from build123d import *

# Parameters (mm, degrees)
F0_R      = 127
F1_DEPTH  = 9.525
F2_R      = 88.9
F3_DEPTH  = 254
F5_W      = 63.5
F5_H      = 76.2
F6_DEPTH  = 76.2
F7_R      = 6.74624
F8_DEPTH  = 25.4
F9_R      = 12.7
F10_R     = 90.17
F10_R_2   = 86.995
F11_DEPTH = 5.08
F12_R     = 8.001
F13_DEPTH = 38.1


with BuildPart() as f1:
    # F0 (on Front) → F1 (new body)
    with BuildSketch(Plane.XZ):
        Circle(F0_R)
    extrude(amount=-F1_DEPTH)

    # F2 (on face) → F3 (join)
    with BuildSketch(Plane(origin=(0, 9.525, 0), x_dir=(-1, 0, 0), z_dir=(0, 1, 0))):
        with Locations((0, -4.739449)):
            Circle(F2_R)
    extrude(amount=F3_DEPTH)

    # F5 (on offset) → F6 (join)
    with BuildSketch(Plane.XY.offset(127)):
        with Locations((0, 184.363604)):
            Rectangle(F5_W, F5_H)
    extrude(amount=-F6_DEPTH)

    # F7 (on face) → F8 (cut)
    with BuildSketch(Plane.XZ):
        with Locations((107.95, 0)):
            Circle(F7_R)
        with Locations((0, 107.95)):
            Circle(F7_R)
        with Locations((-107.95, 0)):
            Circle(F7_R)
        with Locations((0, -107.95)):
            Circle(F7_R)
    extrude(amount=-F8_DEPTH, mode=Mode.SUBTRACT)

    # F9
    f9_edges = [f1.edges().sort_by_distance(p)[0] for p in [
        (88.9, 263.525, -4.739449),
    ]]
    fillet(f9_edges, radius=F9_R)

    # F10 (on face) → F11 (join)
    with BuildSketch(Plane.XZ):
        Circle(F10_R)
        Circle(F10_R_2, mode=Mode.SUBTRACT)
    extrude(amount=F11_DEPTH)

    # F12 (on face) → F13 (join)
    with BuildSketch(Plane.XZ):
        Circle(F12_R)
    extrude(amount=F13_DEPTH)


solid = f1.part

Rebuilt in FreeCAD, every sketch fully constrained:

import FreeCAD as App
import Part
import Sketcher
from FreeCAD import Vector
Q = App.Units.Quantity


def edges_at(feature, points):
    """Names of the edges that pass closest to the given points."""
    edges = feature.Shape.Edges
    near = lambda p: min(range(len(edges)), key=lambda i: edges[i].distToShape(Part.Vertex(*p))[0])
    return sorted({f"Edge{near(p) + 1}" for p in points})

doc = App.newDocument("Part")
body = doc.addObject("PartDesign::Body", "Body")

sketch1 = body.newObject("Sketcher::SketchObject", "Sketch")
sketch1.AttachmentSupport = (doc.getObject("XZ_Plane"), [""])
sketch1.MapMode = "FlatFace"
sketch1.addGeometry(Part.Circle(Vector(0, 0, 0), Vector(0, 0, 1), 127), False)
sketch1.addConstraint([
    Sketcher.Constraint("Coincident", 0, 3, -1, 1),
    Sketcher.Constraint("Diameter", 0, Q("10 in")),
])
pad1 = body.newObject("PartDesign::Pad", "Pad")
pad1.Profile = sketch1
pad1.Length = Q("0.375 in")
pad1.Reversed = True

sketch2 = body.newObject("Sketcher::SketchObject", "Sketch001")
sketch2.AttachmentSupport = (doc.getObject("XZ_Plane"), [""])
sketch2.MapMode = "FlatFace"
sketch2.AttachmentOffset = App.Placement(Vector(0, 0, -0.375 * 25.4), App.Rotation())
sketch2.addGeometry(Part.Circle(Vector(0, -5, 0), Vector(0, 0, 1), 89), False)
sketch2.addConstraint([
    Sketcher.Constraint("PointOnObject", 0, 3, -2),
    Sketcher.Constraint("Diameter", 0, Q("7 in")),
    Sketcher.Constraint("DistanceY", 0, 3, -1, 1, 4.739449),
])
pad2 = body.newObject("PartDesign::Pad", "Pad001")
pad2.Profile = sketch2
pad2.Length = Q("10 in")
pad2.Reversed = True

sketch3 = body.newObject("Sketcher::SketchObject", "Sketch002")
sketch3.AttachmentSupport = (doc.getObject("XY_Plane"), [""])
sketch3.MapMode = "FlatFace"
sketch3.AttachmentOffset = App.Placement(Vector(0, 0, 5 * 25.4), App.Rotation())
sketch3.addGeometry([
    Part.LineSegment(Vector(-32, 222, 0), Vector(-32, 146, 0)),
    Part.LineSegment(Vector(-32, 146, 0), Vector(32, 146, 0)),
    Part.LineSegment(Vector(32, 146, 0), Vector(32, 222, 0)),
    Part.LineSegment(Vector(32, 222, 0), Vector(-32, 222, 0)),
], False)
sketch3.addConstraint([
    Sketcher.Constraint("Coincident", 0, 2, 1, 1),
    Sketcher.Constraint("Coincident", 1, 2, 2, 1),
    Sketcher.Constraint("Coincident", 2, 2, 3, 1),
    Sketcher.Constraint("Coincident", 3, 2, 0, 1),
    Sketcher.Constraint("Vertical", 0),
    Sketcher.Constraint("Horizontal", 1),
    Sketcher.Constraint("Vertical", 2),
    Sketcher.Constraint("Horizontal", 3),
    Sketcher.Constraint("DistanceY", 0, 2, 0, 1, Q("3 in")),
    Sketcher.Constraint("DistanceX", 1, 1, 1, 2, Q("2.5 in")),
    Sketcher.Constraint("DistanceX", 0, 2, -1, 1, Q("1.25 in")),
    Sketcher.Constraint("DistanceY", -1, 1, 0, 2, 146.263604),
])
pad3 = body.newObject("PartDesign::Pad", "Pad002")
pad3.Profile = sketch3
pad3.Length = Q("3 in")
pad3.Reversed = True

sketch4 = body.newObject("Sketcher::SketchObject", "Sketch003")
sketch4.AttachmentSupport = (doc.getObject("XZ_Plane"), [""])
sketch4.MapMode = "FlatFace"
sketch4.addGeometry([
    Part.Circle(Vector(108, 0, 0), Vector(0, 0, 1), 7),
    Part.Circle(Vector(0, 108, 0), Vector(0, 0, 1), 7),
    Part.Circle(Vector(-108, 0, 0), Vector(0, 0, 1), 7),
    Part.Circle(Vector(0, -108, 0), Vector(0, 0, 1), 7),
], False)
sketch4.addConstraint([
    Sketcher.Constraint("Equal", 0, 1),
    Sketcher.Constraint("Equal", 1, 2),
    Sketcher.Constraint("Equal", 2, 3),
    Sketcher.Constraint("Symmetric", 0, 3, 2, 3, -1, 1),
    Sketcher.Constraint("Symmetric", 1, 3, 3, 3, -1, 1),
    Sketcher.Constraint("PointOnObject", 0, 3, -1),
    Sketcher.Constraint("PointOnObject", 1, 3, -2),
    Sketcher.Constraint("Diameter", 0, Q("0.5312 in")),
    Sketcher.Constraint("DistanceX", 2, 3, 0, 3, Q("8.5 in")),
    Sketcher.Constraint("DistanceY", 3, 3, 1, 3, Q("8.5 in")),
])
pocket1 = body.newObject("PartDesign::Pocket", "Pocket")
pocket1.Profile = sketch4
pocket1.Length = Q("1 in")
doc.recompute()

fillet = body.newObject("PartDesign::Fillet", "Fillet")
fillet.Base = (pocket1, edges_at(pocket1, [(88.9, 263.525, -4.739)]))
fillet.Radius = Q("0.5 in")

sketch5 = body.newObject("Sketcher::SketchObject", "Sketch004")
sketch5.AttachmentSupport = (doc.getObject("XZ_Plane"), [""])
sketch5.MapMode = "FlatFace"
sketch5.addGeometry([
    Part.Circle(Vector(0, 0, 0), Vector(0, 0, 1), 90),
    Part.Circle(Vector(0, 0, 0), Vector(0, 0, 1), 87),
], False)
sketch5.addConstraint([
    Sketcher.Constraint("Coincident", 0, 3, -1, 1),
    Sketcher.Constraint("Coincident", 1, 3, -1, 1),
    Sketcher.Constraint("Diameter", 0, Q("7.1 in")),
    Sketcher.Constraint("Diameter", 1, Q("6.85 in")),
])
pad4 = body.newObject("PartDesign::Pad", "Pad003")
pad4.Profile = sketch5
pad4.Length = Q("0.2 in")

sketch6 = body.newObject("Sketcher::SketchObject", "Sketch005")
sketch6.AttachmentSupport = (doc.getObject("XZ_Plane"), [""])
sketch6.MapMode = "FlatFace"
sketch6.addGeometry(Part.Circle(Vector(0, 0, 0), Vector(0, 0, 1), 8), False)
sketch6.addConstraint([
    Sketcher.Constraint("Coincident", 0, 3, -1, 1),
    Sketcher.Constraint("Diameter", 0, Q("0.63 in")),
])
pad5 = body.newObject("PartDesign::Pad", "Pad004")
pad5.Profile = sketch6
pad5.Length = Q("1.5 in")

doc.recompute()
